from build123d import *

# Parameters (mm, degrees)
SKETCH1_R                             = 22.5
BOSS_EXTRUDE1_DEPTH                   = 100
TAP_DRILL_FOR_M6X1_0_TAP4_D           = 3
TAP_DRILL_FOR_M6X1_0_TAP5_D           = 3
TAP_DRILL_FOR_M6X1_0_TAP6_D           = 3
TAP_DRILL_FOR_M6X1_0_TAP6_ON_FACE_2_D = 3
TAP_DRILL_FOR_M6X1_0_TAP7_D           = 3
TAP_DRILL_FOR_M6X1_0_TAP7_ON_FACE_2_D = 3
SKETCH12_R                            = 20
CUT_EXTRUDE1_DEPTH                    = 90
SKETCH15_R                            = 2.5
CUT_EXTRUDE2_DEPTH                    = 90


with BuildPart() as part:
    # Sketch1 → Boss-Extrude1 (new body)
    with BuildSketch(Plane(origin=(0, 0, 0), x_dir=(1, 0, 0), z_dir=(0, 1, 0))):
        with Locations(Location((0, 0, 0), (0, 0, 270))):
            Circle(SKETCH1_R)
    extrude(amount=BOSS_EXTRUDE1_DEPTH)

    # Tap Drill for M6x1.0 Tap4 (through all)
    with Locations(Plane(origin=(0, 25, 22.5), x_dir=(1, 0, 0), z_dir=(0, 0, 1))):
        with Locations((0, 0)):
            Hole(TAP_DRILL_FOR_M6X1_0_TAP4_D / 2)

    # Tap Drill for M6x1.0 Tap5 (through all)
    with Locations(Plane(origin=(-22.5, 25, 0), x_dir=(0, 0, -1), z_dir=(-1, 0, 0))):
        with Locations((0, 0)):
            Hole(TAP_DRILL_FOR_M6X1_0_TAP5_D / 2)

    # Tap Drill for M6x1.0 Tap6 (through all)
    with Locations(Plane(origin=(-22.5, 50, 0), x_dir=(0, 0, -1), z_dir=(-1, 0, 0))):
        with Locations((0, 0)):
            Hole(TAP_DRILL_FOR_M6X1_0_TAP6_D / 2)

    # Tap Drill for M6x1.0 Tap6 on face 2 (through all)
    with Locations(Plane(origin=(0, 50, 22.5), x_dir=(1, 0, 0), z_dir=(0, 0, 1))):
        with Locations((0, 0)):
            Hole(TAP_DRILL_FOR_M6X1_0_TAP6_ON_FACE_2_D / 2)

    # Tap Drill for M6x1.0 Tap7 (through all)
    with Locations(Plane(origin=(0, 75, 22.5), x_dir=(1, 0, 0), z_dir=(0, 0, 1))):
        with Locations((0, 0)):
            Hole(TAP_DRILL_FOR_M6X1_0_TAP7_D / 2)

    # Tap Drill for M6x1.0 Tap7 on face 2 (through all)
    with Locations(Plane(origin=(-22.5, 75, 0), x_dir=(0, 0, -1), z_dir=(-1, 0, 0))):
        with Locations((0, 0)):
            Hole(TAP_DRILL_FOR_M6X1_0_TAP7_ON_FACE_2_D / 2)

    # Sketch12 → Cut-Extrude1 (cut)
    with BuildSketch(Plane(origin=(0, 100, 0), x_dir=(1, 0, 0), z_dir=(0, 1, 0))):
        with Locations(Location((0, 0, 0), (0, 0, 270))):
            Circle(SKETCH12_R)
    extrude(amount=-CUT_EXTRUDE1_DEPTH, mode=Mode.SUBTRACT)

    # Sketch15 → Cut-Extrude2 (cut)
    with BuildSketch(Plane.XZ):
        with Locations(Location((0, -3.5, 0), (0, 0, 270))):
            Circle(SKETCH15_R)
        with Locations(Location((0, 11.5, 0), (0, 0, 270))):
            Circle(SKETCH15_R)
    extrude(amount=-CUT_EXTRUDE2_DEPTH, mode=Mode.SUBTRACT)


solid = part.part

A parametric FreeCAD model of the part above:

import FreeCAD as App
import Part
import Sketcher
Q = App.Units.Quantity

doc = App.newDocument("Part")
params = doc.addObject("Spreadsheet::Sheet", "Params")
for row, (alias, value) in enumerate([
    ("sketch1_diameter", "45 mm"),
    ("pad1_length", "100 mm"),
    ("sketch2_diameter", "3 mm"),
    ("hole_diameter", "3 mm"),
    ("sketch3_diameter", "3 mm"),
    ("hole2_diameter", "3 mm"),
    ("sketch4_diameter", "3 mm"),
    ("hole3_diameter", "3 mm"),
    ("sketch5_diameter", "3 mm"),
    ("hole4_diameter", "3 mm"),
    ("sketch6_diameter", "3 mm"),
    ("hole5_diameter", "3 mm"),
    ("sketch7_diameter", "3 mm"),
    ("hole6_diameter", "3 mm"),
    ("sketch8_diameter", "40 mm"),
    ("pocket1_length", "90 mm"),
    ("sketch9_diameter", "5 mm"),
    ("pocket2_length", "90 mm"),
], start=1):
    params.set(f"A{row}", alias)
    params.set(f"B{row}", "=" + value)
    params.setAlias(f"B{row}", alias)

body = doc.addObject("PartDesign::Body", "Body")

# Sketch on XZ plane
sketch1 = doc.addObject("Sketcher::SketchObject", "Sketch")
body.addObject(sketch1)
sketch1.AttachmentSupport = (doc.XZ_Plane, [""])
sketch1.MapMode = "FlatFace"
sketch1.addGeometry(Part.Circle(App.Vector(0, 0, 0), App.Vector(0, 0, 1), 22), False)
sketch1.addConstraint([
    Sketcher.Constraint("Coincident", 0, 3, -1, 1),
    Sketcher.Constraint("Diameter", 0, Q("45 mm")),
])
sketch1.setExpression("Constraints[1]", "Params.sketch1_diameter")
pad1 = doc.addObject("PartDesign::Pad", "Pad")
body.addObject(pad1)
pad1.Profile = sketch1
pad1.setExpression("Length", "Params.pad1_length")
pad1.Reversed = True

# Sketch on XY plane
sketch2 = doc.addObject("Sketcher::SketchObject", "Sketch001")
body.addObject(sketch2)
sketch2.AttachmentSupport = (doc.XY_Plane, [""])
sketch2.MapMode = "FlatFace"
sketch2.AttachmentOffset = App.Placement(App.Vector(0, 0, 22.5), App.Rotation())
sketch2.addGeometry(Part.Circle(App.Vector(0, 25, 0), App.Vector(0, 0, 1), 1.5), False)
sketch2.addConstraint([
    Sketcher.Constraint("PointOnObject", 0, 3, -2),
    Sketcher.Constraint("Diameter", 0, Q("3 mm")),
    Sketcher.Constraint("DistanceY", -1, 1, 0, 3, Q("25 mm")),
])
sketch2.setExpression("Constraints[1]", "Params.sketch2_diameter")
doc.recompute()
hole = doc.addObject("PartDesign::Hole", "Hole")
body.addObject(hole)
hole.Profile = sketch2
hole.ThreadType = "None"
hole.setExpression("Diameter", "Params.hole_diameter")
hole.DepthType = "ThroughAll"

# Sketch on YZ plane
sketch3 = doc.addObject("Sketcher::SketchObject", "Sketch002")
body.addObject(sketch3)
sketch3.AttachmentSupport = (doc.YZ_Plane, [""])
sketch3.MapMode = "FlatFace"
sketch3.AttachmentOffset = App.Placement(App.Vector(0, 0, -22.5), App.Rotation())
sketch3.addGeometry(Part.Circle(App.Vector(25, 0, 0), App.Vector(0, 0, 1), 1.5), False)
sketch3.addConstraint([
    Sketcher.Constraint("PointOnObject", 0, 3, -1),
    Sketcher.Constraint("Diameter", 0, Q("3 mm")),
    Sketcher.Constraint("DistanceX", -1, 1, 0, 3, Q("25 mm")),
])
sketch3.setExpression("Constraints[1]", "Params.sketch3_diameter")
doc.recompute()
hole2 = doc.addObject("PartDesign::Hole", "Hole001")
body.addObject(hole2)
hole2.Profile = sketch3
hole2.ThreadType = "None"
hole2.setExpression("Diameter", "Params.hole2_diameter")
hole2.DepthType = "ThroughAll"
hole2.Reversed = True

# Sketch on YZ plane
sketch4 = doc.addObject("Sketcher::SketchObject", "Sketch003")
body.addObject(sketch4)
sketch4.AttachmentSupport = (doc.YZ_Plane, [""])
sketch4.MapMode = "FlatFace"
sketch4.AttachmentOffset = App.Placement(App.Vector(0, 0, -22.5), App.Rotation())
sketch4.addGeometry(Part.Circle(App.Vector(50, 0, 0), App.Vector(0, 0, 1), 1.5), False)
sketch4.addConstraint([
    Sketcher.Constraint("PointOnObject", 0, 3, -1),
    Sketcher.Constraint("Diameter", 0, Q("3 mm")),
    Sketcher.Constraint("DistanceX", -1, 1, 0, 3, Q("50 mm")),
])
sketch4.setExpression("Constraints[1]", "Params.sketch4_diameter")
doc.recompute()
hole3 = doc.addObject("PartDesign::Hole", "Hole002")
body.addObject(hole3)
hole3.Profile = sketch4
hole3.ThreadType = "None"
hole3.setExpression("Diameter", "Params.hole3_diameter")
hole3.DepthType = "ThroughAll"
hole3.Reversed = True

# Sketch on XY plane
sketch5 = doc.addObject("Sketcher::SketchObject", "Sketch004")
body.addObject(sketch5)
sketch5.AttachmentSupport = (doc.XY_Plane, [""])
sketch5.MapMode = "FlatFace"
sketch5.AttachmentOffset = App.Placement(App.Vector(0, 0, 22.5), App.Rotation())
sketch5.addGeometry(Part.Circle(App.Vector(0, 50, 0), App.Vector(0, 0, 1), 1.5), False)
sketch5.addConstraint([
    Sketcher.Constraint("PointOnObject", 0, 3, -2),
    Sketcher.Constraint("Diameter", 0, Q("3 mm")),
    Sketcher.Constraint("DistanceY", -1, 1, 0, 3, Q("50 mm")),
])
sketch5.setExpression("Constraints[1]", "Params.sketch5_diameter")
doc.recompute()
hole4 = doc.addObject("PartDesign::Hole", "Hole003")
body.addObject(hole4)
hole4.Profile = sketch5
hole4.ThreadType = "None"
hole4.setExpression("Diameter", "Params.hole4_diameter")
hole4.DepthType = "ThroughAll"

# Sketch on XY plane
sketch6 = doc.addObject("Sketcher::SketchObject", "Sketch005")
body.addObject(sketch6)
sketch6.AttachmentSupport = (doc.XY_Plane, [""])
sketch6.MapMode = "FlatFace"
sketch6.AttachmentOffset = App.Placement(App.Vector(0, 0, 22.5), App.Rotation())
sketch6.addGeometry(Part.Circle(App.Vector(0, 75, 0), App.Vector(0, 0, 1), 1.5), False)
sketch6.addConstraint([
    Sketcher.Constraint("PointOnObject", 0, 3, -2),
    Sketcher.Constraint("Diameter", 0, Q("3 mm")),
    Sketcher.Constraint("DistanceY", -1, 1, 0, 3, Q("75 mm")),
])
sketch6.setExpression("Constraints[1]", "Params.sketch6_diameter")
doc.recompute()
hole5 = doc.addObject("PartDesign::Hole", "Hole004")
body.addObject(hole5)
hole5.Profile = sketch6
hole5.ThreadType = "None"
hole5.setExpression("Diameter", "Params.hole5_diameter")
hole5.DepthType = "ThroughAll"

# Sketch on YZ plane
sketch7 = doc.addObject("Sketcher::SketchObject", "Sketch006")
body.addObject(sketch7)
sketch7.AttachmentSupport = (doc.YZ_Plane, [""])
sketch7.MapMode = "FlatFace"
sketch7.AttachmentOffset = App.Placement(App.Vector(0, 0, -22.5), App.Rotation())
sketch7.addGeometry(Part.Circle(App.Vector(75, 0, 0), App.Vector(0, 0, 1), 1.5), False)
sketch7.addConstraint([
    Sketcher.Constraint("PointOnObject", 0, 3, -1),
    Sketcher.Constraint("Diameter", 0, Q("3 mm")),
    Sketcher.Constraint("DistanceX", -1, 1, 0, 3, Q("75 mm")),
])
sketch7.setExpression("Constraints[1]", "Params.sketch7_diameter")
doc.recompute()
hole6 = doc.addObject("PartDesign::Hole", "Hole005")
body.addObject(hole6)
hole6.Profile = sketch7
hole6.ThreadType = "None"
hole6.setExpression("Diameter", "Params.hole6_diameter")
hole6.DepthType = "ThroughAll"
hole6.Reversed = True

# Sketch on XZ plane
sketch8 = doc.addObject("Sketcher::SketchObject", "Sketch007")
body.addObject(sketch8)
sketch8.AttachmentSupport = (doc.XZ_Plane, [""])
sketch8.MapMode = "FlatFace"
sketch8.AttachmentOffset = App.Placement(App.Vector(0, 0, -100), App.Rotation())
sketch8.addGeometry(Part.Circle(App.Vector(0, 0, 0), App.Vector(0, 0, 1), 20), False)
sketch8.addConstraint([
    Sketcher.Constraint("Coincident", 0, 3, -1, 1),
    Sketcher.Constraint("Diameter", 0, Q("40 mm")),
])
sketch8.setExpression("Constraints[1]", "Params.sketch8_diameter")
pocket1 = doc.addObject("PartDesign::Pocket", "Pocket")
body.addObject(pocket1)
pocket1.Profile = sketch8
pocket1.setExpression("Length", "Params.pocket1_length")
pocket1.Reversed = True

# Sketch on XZ plane
sketch9 = doc.addObject("Sketcher::SketchObject", "Sketch008")
body.addObject(sketch9)
sketch9.AttachmentSupport = (doc.XZ_Plane, [""])
sketch9.MapMode = "FlatFace"
sketch9.addGeometry([
    Part.Circle(App.Vector(0, -3.5, 0), App.Vector(0, 0, 1), 2.5),
    Part.Circle(App.Vector(0, 11.5, 0), App.Vector(0, 0, 1), 2.5),
], False)
sketch9.addConstraint([
    Sketcher.Constraint("Equal", 0, 1),
    Sketcher.Constraint("PointOnObject", 0, 3, -2),
    Sketcher.Constraint("PointOnObject", 1, 3, -2),
    Sketcher.Constraint("Diameter", 0, Q("5 mm")),
    Sketcher.Constraint("DistanceY", 0, 3, 1, 3, Q("15 mm")),
    Sketcher.Constraint("DistanceY", 0, 3, -1, 1, Q("3.5 mm")),
])
sketch9.setExpression("Constraints[3]", "Params.sketch9_diameter")
pocket2 = doc.addObject("PartDesign::Pocket", "Pocket001")
body.addObject(pocket2)
pocket2.Profile = sketch9
pocket2.setExpression("Length", "Params.pocket2_length")

doc.recompute()
